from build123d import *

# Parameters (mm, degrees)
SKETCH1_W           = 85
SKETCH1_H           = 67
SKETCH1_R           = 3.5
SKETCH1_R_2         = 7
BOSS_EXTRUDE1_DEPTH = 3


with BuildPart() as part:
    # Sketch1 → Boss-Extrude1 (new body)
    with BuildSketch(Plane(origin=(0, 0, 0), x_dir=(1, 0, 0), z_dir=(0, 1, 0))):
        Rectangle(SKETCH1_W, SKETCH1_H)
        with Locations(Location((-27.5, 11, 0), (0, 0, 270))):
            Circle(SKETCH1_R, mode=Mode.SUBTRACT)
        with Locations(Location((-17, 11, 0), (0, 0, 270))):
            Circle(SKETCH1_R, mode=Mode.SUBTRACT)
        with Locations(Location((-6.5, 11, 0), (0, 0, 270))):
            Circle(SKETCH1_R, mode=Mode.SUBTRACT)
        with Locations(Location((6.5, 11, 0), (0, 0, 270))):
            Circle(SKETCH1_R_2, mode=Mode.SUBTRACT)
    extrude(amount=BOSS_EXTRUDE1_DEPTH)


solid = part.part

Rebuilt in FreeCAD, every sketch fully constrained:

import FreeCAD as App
import Part
import Sketcher

V = App.Vector
Q = App.Units.Quantity

doc = App.newDocument("Part")
params = doc.addObject("Spreadsheet::Sheet", "Params")
for row, (alias, value) in enumerate([
    ("sketch1_diameter", "7 mm"),
    ("sketch1_diameter2", "14 mm"),
    ("sketch1_width", "85 mm"),
    ("sketch1_height", "67 mm"),
    ("pad1_length", "3 mm"),
], start=1):
    params.set(f"A{row}", alias)
    params.set(f"B{row}", "=" + value)
    params.setAlias(f"B{row}", alias)

body = doc.addObject("PartDesign::Body", "Body")

# Sketch on XZ plane
sketch1 = doc.addObject("Sketcher::SketchObject", "Sketch")
body.addObject(sketch1)
sketch1.AttachmentSupport = (doc.XZ_Plane, [""])
sketch1.MapMode = "FlatFace"
sketch1.addGeometry([
    Part.LineSegment(V(-42.5, -33.5, 0), V(-42.5, 33.5, 0)),  # 0
    Part.LineSegment(V(-42.5, 33.5, 0), V(42.5, 33.5, 0)),  # 1
    Part.LineSegment(V(42.5, 33.5, 0), V(42.5, -33.5, 0)),  # 2
    Part.LineSegment(V(42.5, -33.5, 0), V(-42.5, -33.5, 0)),  # 3
    Part.Circle(V(-27.5, -11, 0), V(0, 0, 1), 3.5),  # 4
    Part.Circle(V(-17, -11, 0), V(0, 0, 1), 3.5),  # 5
    Part.Circle(V(-6.5, -11, 0), V(0, 0, 1), 3.5),  # 6
    Part.Circle(V(6.5, -11, 0), V(0, 0, 1), 7),  # 7
], False)
sketch1.addConstraint([
    Sketcher.Constraint("Coincident", 0, 2, 1, 1),
    Sketcher.Constraint("Coincident", 1, 2, 2, 1),
    Sketcher.Constraint("Coincident", 2, 2, 3, 1),
    Sketcher.Constraint("Coincident", 3, 2, 0, 1),
    Sketcher.Constraint("Vertical", 0),
    Sketcher.Constraint("Horizontal", 1),
    Sketcher.Constraint("Vertical", 2),
    Sketcher.Constraint("Horizontal", 3),
    Sketcher.Constraint("Equal", 4, 5),
    Sketcher.Constraint("Equal", 5, 6),
    Sketcher.Constraint("Symmetric", 0, 2, 2, 2, -1, 1),
    Sketcher.Constraint("Symmetric", 6, 3, 7, 3, -2),
    Sketcher.Constraint("Horizontal", 4, 3, 5, 3),
    Sketcher.Constraint("Horizontal", 5, 3, 6, 3),
    Sketcher.Constraint("Diameter", 4, Q("7 mm")),
    Sketcher.Constraint("Diameter", 7, Q("14 mm")),
    Sketcher.Constraint("DistanceX", 1, 1, 1, 2, Q("85 mm")),
    Sketcher.Constraint("DistanceY", 0, 1, 0, 2, Q("67 mm")),
    Sketcher.Constraint("DistanceY", 4, 3, -1, 1, Q("11 mm")),
    Sketcher.Constraint("DistanceX", 5, 3, -1, 1, Q("17 mm")),
    Sketcher.Constraint("DistanceX", 4, 3, 6, 3, Q("21 mm")),
    Sketcher.Constraint("DistanceX", 6, 3, 7, 3, Q("13 mm")),
])
sketch1.setExpression("Constraints[14]", "Params.sketch1_diameter")
sketch1.setExpression("Constraints[15]", "Params.sketch1_diameter2")
sketch1.setExpression("Constraints[16]", "Params.sketch1_width")
sketch1.setExpression("Constraints[17]", "Params.sketch1_height")
pad1 = doc.addObject("PartDesign::Pad", "Pad")
body.addObject(pad1)
pad1.Profile = sketch1
pad1.setExpression("Length", "Params.pad1_length")
pad1.Reversed = True

doc.recompute()
